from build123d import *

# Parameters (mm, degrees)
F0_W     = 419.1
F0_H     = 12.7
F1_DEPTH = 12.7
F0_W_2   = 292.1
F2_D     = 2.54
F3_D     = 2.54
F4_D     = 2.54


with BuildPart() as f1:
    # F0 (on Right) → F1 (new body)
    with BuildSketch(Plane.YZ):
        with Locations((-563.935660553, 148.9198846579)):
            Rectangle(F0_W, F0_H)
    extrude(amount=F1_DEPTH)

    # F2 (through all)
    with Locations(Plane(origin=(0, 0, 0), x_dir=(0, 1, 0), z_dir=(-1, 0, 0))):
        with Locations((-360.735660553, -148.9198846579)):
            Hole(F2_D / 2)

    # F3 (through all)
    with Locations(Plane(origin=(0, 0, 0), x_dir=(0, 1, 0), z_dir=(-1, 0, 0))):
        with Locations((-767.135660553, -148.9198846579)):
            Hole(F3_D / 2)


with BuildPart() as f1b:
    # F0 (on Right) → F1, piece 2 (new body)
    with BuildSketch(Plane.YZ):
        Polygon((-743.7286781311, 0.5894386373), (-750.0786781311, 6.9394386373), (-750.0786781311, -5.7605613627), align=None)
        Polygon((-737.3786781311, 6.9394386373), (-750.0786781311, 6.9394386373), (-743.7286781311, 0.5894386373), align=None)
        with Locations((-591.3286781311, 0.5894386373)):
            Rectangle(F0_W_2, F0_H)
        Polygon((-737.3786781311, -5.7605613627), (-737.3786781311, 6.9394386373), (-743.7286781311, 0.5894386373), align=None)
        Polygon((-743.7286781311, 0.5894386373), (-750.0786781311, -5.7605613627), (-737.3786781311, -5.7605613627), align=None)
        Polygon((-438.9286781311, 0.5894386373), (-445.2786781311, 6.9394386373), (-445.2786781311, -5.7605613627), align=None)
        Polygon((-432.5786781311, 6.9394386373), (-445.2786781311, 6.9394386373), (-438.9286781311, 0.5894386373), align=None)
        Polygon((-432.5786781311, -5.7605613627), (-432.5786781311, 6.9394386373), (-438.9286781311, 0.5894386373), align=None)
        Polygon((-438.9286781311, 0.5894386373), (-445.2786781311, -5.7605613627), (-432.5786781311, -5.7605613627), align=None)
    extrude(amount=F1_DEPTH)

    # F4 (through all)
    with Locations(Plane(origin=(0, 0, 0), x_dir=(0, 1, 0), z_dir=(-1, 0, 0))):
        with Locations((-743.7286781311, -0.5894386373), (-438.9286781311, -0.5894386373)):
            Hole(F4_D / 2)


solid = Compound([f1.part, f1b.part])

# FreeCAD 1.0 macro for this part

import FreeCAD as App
import Part
import Sketcher
Q = App.Units.Quantity

doc = App.newDocument("Part")
body = doc.addObject("PartDesign::Body", "Body")

# Sketch on YZ plane
sketch1 = body.newObject("Sketcher::SketchObject", "Sketch")
sketch1.AttachmentSupport = (doc.getObject("YZ_Plane"), [""])
sketch1.MapMode = "FlatFace"
sketch1.addGeometry([
    Part.LineSegment(App.Vector(-773.485661, 155.269885, 0), App.Vector(-773.485661, 142.569885, 0)),
    Part.LineSegment(App.Vector(-773.485661, 142.569885, 0), App.Vector(-354.385661, 142.569885, 0)),
    Part.LineSegment(App.Vector(-354.385661, 142.569885, 0), App.Vector(-354.385661, 155.269885, 0)),
    Part.LineSegment(App.Vector(-354.385661, 155.269885, 0), App.Vector(-773.485661, 155.269885, 0)),
], False)
sketch1.addConstraint([
    Sketcher.Constraint("Coincident", 0, 2, 1, 1),
    Sketcher.Constraint("Coincident", 1, 2, 2, 1),
    Sketcher.Constraint("Coincident", 2, 2, 3, 1),
    Sketcher.Constraint("Coincident", 3, 2, 0, 1),
    Sketcher.Constraint("Vertical", 0),
    Sketcher.Constraint("Horizontal", 1),
    Sketcher.Constraint("Vertical", 2),
    Sketcher.Constraint("Horizontal", 3),
    Sketcher.Constraint("DistanceX", 1, 1, 1, 2, Q("16.5 in")),
    Sketcher.Constraint("DistanceY", 0, 2, 0, 1, Q("0.5 in")),
    Sketcher.Constraint("DistanceX", 0, 2, -1, 1, Q("773.485661 mm")),
    Sketcher.Constraint("DistanceY", -1, 1, 0, 2, Q("142.569885 mm")),
])
pad1 = body.newObject("PartDesign::Pad", "Pad")
pad1.Profile = sketch1
pad1.Length = Q("0.5 in")

# Sketch on YZ plane
sketch2 = body.newObject("Sketcher::SketchObject", "Sketch001")
sketch2.AttachmentSupport = (doc.getObject("YZ_Plane"), [""])
sketch2.MapMode = "FlatFace"
sketch2.addGeometry(Part.Circle(App.Vector(-360.735661, 148.919885, 0), App.Vector(0, 0, 1), 1.27), False)
sketch2.addConstraint([
    Sketcher.Constraint("Diameter", 0, Q("0.1 in")),
    Sketcher.Constraint("DistanceX", 0, 3, -1, 1, Q("360.735661 mm")),
    Sketcher.Constraint("DistanceY", -1, 1, 0, 3, Q("148.919885 mm")),
])
doc.recompute()
hole = body.newObject("PartDesign::Hole", "Hole")
hole.Profile = sketch2
hole.ThreadType = "None"
hole.Diameter = Q("0.1 in")
hole.DepthType = "ThroughAll"
hole.Reversed = True

# Sketch on YZ plane
sketch3 = body.newObject("Sketcher::SketchObject", "Sketch002")
sketch3.AttachmentSupport = (doc.getObject("YZ_Plane"), [""])
sketch3.MapMode = "FlatFace"
sketch3.addGeometry(Part.Circle(App.Vector(-767.135661, 148.919885, 0), App.Vector(0, 0, 1), 1.27), False)
sketch3.addConstraint([
    Sketcher.Constraint("Diameter", 0, Q("0.1 in")),
    Sketcher.Constraint("DistanceX", 0, 3, -1, 1, Q("767.135661 mm")),
    Sketcher.Constraint("DistanceY", -1, 1, 0, 3, Q("148.919885 mm")),
])
doc.recompute()
hole2 = body.newObject("PartDesign::Hole", "Hole001")
hole2.Profile = sketch3
hole2.ThreadType = "None"
hole2.Diameter = Q("0.1 in")
hole2.DepthType = "ThroughAll"
hole2.Reversed = True
body2 = doc.addObject("PartDesign::Body", "Body001")

# Sketch on YZ plane
sketch4 = body2.newObject("Sketcher::SketchObject", "Sketch003")
sketch4.AttachmentSupport = (doc.getObject("YZ_Plane001"), [""])
sketch4.MapMode = "FlatFace"
sketch4.addGeometry([
    Part.LineSegment(App.Vector(-750.078678, 6.939439, 0), App.Vector(-750.078678, -5.760561, 0)),
    Part.LineSegment(App.Vector(-750.078678, -5.760561, 0), App.Vector(-432.578678, -5.760561, 0)),
    Part.LineSegment(App.Vector(-432.578678, -5.760561, 0), App.Vector(-432.578678, 6.939439, 0)),
    Part.LineSegment(App.Vector(-432.578678, 6.939439, 0), App.Vector(-750.078678, 6.939439, 0)),
], False)
sketch4.addConstraint([
    Sketcher.Constraint("Coincident", 0, 2, 1, 1),
    Sketcher.Constraint("Coincident", 1, 2, 2, 1),
    Sketcher.Constraint("Coincident", 2, 2, 3, 1),
    Sketcher.Constraint("Coincident", 3, 2, 0, 1),
    Sketcher.Constraint("Vertical", 0),
    Sketcher.Constraint("Horizontal", 1),
    Sketcher.Constraint("Vertical", 2),
    Sketcher.Constraint("Horizontal", 3),
    Sketcher.Constraint("DistanceX", 1, 1, 1, 2, Q("12.5 in")),
    Sketcher.Constraint("DistanceY", 0, 2, 0, 1, Q("0.5 in")),
    Sketcher.Constraint("DistanceX", 0, 2, -1, 1, Q("750.078678 mm")),
    Sketcher.Constraint("DistanceY", 0, 2, -1, 1, Q("5.760561 mm")),
])
pad2 = body2.newObject("PartDesign::Pad", "Pad001")
pad2.Profile = sketch4
pad2.Length = Q("0.5 in")

# Sketch on YZ plane
sketch5 = body2.newObject("Sketcher::SketchObject", "Sketch004")
sketch5.AttachmentSupport = (doc.getObject("YZ_Plane001"), [""])
sketch5.MapMode = "FlatFace"
sketch5.addGeometry([
    Part.Circle(App.Vector(-743.728678, 0.589439, 0), App.Vector(0, 0, 1), 1.27),
    Part.Circle(App.Vector(-438.928678, 0.589439, 0), App.Vector(0, 0, 1), 1.27),
], False)
sketch5.addConstraint([
    Sketcher.Constraint("Equal", 0, 1),
    Sketcher.Constraint("Horizontal", 0, 3, 1, 3),
    Sketcher.Constraint("Diameter", 0, Q("0.1 in")),
    Sketcher.Constraint("DistanceX", 0, 3, 1, 3, Q("12 in")),
    Sketcher.Constraint("DistanceX", 0, 3, -1, 1, Q("743.728678 mm")),
    Sketcher.Constraint("DistanceY", -1, 1, 0, 3, Q("0.589439 mm")),
])
doc.recompute()
hole3 = body2.newObject("PartDesign::Hole", "Hole002")
hole3.Profile = sketch5
hole3.ThreadType = "None"
hole3.Diameter = Q("0.1 in")
hole3.DepthType = "ThroughAll"
hole3.Reversed = True

doc.recompute()
